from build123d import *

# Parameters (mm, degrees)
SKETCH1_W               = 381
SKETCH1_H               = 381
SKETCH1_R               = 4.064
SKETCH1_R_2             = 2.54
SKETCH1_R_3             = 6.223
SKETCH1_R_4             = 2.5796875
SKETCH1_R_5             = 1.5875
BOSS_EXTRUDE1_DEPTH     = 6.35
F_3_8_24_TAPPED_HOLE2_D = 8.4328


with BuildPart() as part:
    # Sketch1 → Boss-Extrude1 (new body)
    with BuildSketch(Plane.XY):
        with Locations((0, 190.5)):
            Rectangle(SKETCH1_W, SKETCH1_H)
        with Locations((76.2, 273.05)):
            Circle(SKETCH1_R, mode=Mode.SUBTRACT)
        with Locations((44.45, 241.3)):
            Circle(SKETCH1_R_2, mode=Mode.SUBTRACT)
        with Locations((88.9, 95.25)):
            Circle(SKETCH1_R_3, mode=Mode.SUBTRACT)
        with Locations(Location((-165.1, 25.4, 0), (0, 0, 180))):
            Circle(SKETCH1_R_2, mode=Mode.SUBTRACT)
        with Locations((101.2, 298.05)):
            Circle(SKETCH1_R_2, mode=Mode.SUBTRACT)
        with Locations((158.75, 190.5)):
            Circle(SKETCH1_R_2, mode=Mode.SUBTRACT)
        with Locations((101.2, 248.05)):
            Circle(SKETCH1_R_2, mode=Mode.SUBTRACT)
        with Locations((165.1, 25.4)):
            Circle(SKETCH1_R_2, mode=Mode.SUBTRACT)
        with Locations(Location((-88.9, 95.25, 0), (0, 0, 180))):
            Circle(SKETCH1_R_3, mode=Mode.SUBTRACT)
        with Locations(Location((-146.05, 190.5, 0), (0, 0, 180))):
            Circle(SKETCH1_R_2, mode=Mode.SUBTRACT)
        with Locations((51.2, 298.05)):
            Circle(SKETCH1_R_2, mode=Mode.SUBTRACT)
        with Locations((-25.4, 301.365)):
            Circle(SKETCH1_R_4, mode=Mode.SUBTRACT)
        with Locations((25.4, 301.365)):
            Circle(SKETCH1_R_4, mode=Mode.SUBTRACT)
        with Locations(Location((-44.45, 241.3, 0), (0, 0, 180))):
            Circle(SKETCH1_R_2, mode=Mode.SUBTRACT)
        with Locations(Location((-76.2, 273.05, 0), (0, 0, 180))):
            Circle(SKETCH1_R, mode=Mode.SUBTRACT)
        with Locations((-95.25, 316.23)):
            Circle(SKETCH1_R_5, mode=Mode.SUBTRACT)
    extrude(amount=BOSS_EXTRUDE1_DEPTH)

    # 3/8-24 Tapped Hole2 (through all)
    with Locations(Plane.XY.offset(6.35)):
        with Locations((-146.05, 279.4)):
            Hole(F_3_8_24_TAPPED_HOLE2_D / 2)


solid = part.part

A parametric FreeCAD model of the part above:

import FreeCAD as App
import Part
import Sketcher

V = App.Vector
Q = App.Units.Quantity


def add_polygon(sketch, points):
    """Adds a closed chain of lines whose ends are joined by coincident constraints."""
    first, n = sketch.GeometryCount, len(points)
    for a, b in zip(points, points[1:] + points[:1]):
        sketch.addGeometry(Part.LineSegment(App.Vector(*a, 0), App.Vector(*b, 0)), False)
    for i in range(n):
        sketch.addConstraint(Sketcher.Constraint("Coincident", first + i, 2, first + (i + 1) % n, 1))

doc = App.newDocument("Part")
body = doc.addObject("PartDesign::Body", "Body")

sketch1 = body.newObject("Sketcher::SketchObject", "Sketch")
sketch1.AttachmentSupport = (doc.getObject("XY_Plane"), [""])
sketch1.MapMode = "FlatFace"
add_polygon(sketch1, [(-190.5, 381), (-190.5, 0), (190.5, 0), (190.5, 381)])
sketch1.addGeometry(Part.Circle(V(-165.1, 25.4, 0), V(0, 0, 1), 2.5), False)
sketch1.addGeometry(Part.Circle(V(-88.9, 95.2, 0), V(0, 0, 1), 6.2), False)
sketch1.addGeometry(Part.Circle(V(165.1, 25.4, 0), V(0, 0, 1), 2.5), False)
sketch1.addGeometry(Part.Circle(V(88.9, 95.2, 0), V(0, 0, 1), 6.2), False)
sketch1.addGeometry(Part.Circle(V(-146.1, 190.5, 0), V(0, 0, 1), 2.5), False)
sketch1.addGeometry(Part.Circle(V(-44.5, 241.3, 0), V(0, 0, 1), 2.5), False)
sketch1.addGeometry(Part.Circle(V(-95.2, 316.2, 0), V(0, 0, 1), 1.6), False)
sketch1.addGeometry(Part.Circle(V(-76.2, 273.1, 0), V(0, 0, 1), 4.1), False)
sketch1.addGeometry(Part.Circle(V(-25.4, 301.4, 0), V(0, 0, 1), 2.6), False)
sketch1.addGeometry(Part.Circle(V(44.5, 241.3, 0), V(0, 0, 1), 2.5), False)
sketch1.addGeometry(Part.Circle(V(158.8, 190.5, 0), V(0, 0, 1), 2.5), False)
sketch1.addGeometry(Part.Circle(V(76.2, 273.1, 0), V(0, 0, 1), 4.1), False)
sketch1.addGeometry(Part.Circle(V(25.4, 301.4, 0), V(0, 0, 1), 2.6), False)
sketch1.addGeometry(Part.Circle(V(51.2, 298.1, 0), V(0, 0, 1), 2.5), False)
sketch1.addGeometry(Part.Circle(V(101.2, 248.1, 0), V(0, 0, 1), 2.5), False)
sketch1.addGeometry(Part.Circle(V(101.2, 298.1, 0), V(0, 0, 1), 2.5), False)
sketch1.addConstraint(Sketcher.Constraint("Vertical", 0))
sketch1.addConstraint(Sketcher.Constraint("Horizontal", 1))
sketch1.addConstraint(Sketcher.Constraint("Vertical", 2))
sketch1.addConstraint(Sketcher.Constraint("Horizontal", 3))
sketch1.addConstraint(Sketcher.Constraint("Equal", 4, 6))
sketch1.addConstraint(Sketcher.Constraint("Equal", 5, 7))
sketch1.addConstraint(Sketcher.Constraint("Equal", 6, 8))
sketch1.addConstraint(Sketcher.Constraint("Equal", 8, 9))
sketch1.addConstraint(Sketcher.Constraint("Equal", 9, 13))
sketch1.addConstraint(Sketcher.Constraint("Equal", 13, 14))
sketch1.addConstraint(Sketcher.Constraint("Equal", 11, 15))
sketch1.addConstraint(Sketcher.Constraint("Equal", 12, 16))
sketch1.addConstraint(Sketcher.Constraint("Equal", 14, 17))
sketch1.addConstraint(Sketcher.Constraint("Equal", 17, 18))
sketch1.addConstraint(Sketcher.Constraint("Equal", 18, 19))
sketch1.addConstraint(Sketcher.Constraint("Symmetric", 0, 2, 1, 2, -1, 1))
sketch1.addConstraint(Sketcher.Constraint("Symmetric", 4, 3, 6, 3, -2))
sketch1.addConstraint(Sketcher.Constraint("Symmetric", 5, 3, 7, 3, -2))
sketch1.addConstraint(Sketcher.Constraint("Symmetric", 9, 3, 13, 3, -2))
sketch1.addConstraint(Sketcher.Constraint("Symmetric", 11, 3, 15, 3, -2))
sketch1.addConstraint(Sketcher.Constraint("Symmetric", 12, 3, 16, 3, -2))
sketch1.addConstraint(Sketcher.Constraint("Horizontal", 8, 3, 14, 3))
sketch1.addConstraint(Sketcher.Constraint("Horizontal", 17, 3, 19, 3))
sketch1.addConstraint(Sketcher.Constraint("Vertical", 18, 3, 19, 3))
sketch1.addConstraint(Sketcher.Constraint("Equal", 3, 0))
sketch1.addConstraint(Sketcher.Constraint("Diameter", 4, Q("0.2 in")))
sketch1.addConstraint(Sketcher.Constraint("Diameter", 5, Q("0.49 in")))
sketch1.addConstraint(Sketcher.Constraint("Diameter", 11, Q("0.32 in")))
sketch1.addConstraint(Sketcher.Constraint("DistanceX", 1, 1, 1, 2, Q("15 in")))
sketch1.addConstraint(Sketcher.Constraint("Diameter", 10, Q("0.125 in")))
sketch1.addConstraint(Sketcher.Constraint("Diameter", 12, Q("0.203125 in")))
sketch1.addConstraint(Sketcher.Constraint("DistanceY", -1, 1, 4, 3, Q("1 in")))
sketch1.addConstraint(Sketcher.Constraint("DistanceX", 11, 3, -1, 1, Q("3 in")))
sketch1.addConstraint(Sketcher.Constraint("DistanceX", 12, 3, -1, 1, Q("1 in")))
sketch1.addConstraint(Sketcher.Constraint("DistanceX", 4, 3, 5, 3, Q("3 in")))
sketch1.addConstraint(Sketcher.Constraint("DistanceX", 5, 3, 6, 3, Q("10 in")))
sketch1.addConstraint(Sketcher.Constraint("DistanceX", 8, 3, 9, 3, Q("4 in")))
sketch1.addConstraint(Sketcher.Constraint("DistanceY", 8, 3, 9, 3, Q("2 in")))
sketch1.addConstraint(Sketcher.Constraint("DistanceX", 10, 3, 9, 3, Q("2 in")))
sketch1.addConstraint(Sketcher.Constraint("DistanceY", 5, 3, 11, 3, Q("7 in")))
sketch1.addConstraint(Sketcher.Constraint("DistanceX", 9, 3, 14, 3, Q("8 in")))
sketch1.addConstraint(Sketcher.Constraint("DistanceY", -1, 1, 8, 3, Q("7.5 in")))
sketch1.addConstraint(Sketcher.Constraint("DistanceY", 5, 3, 10, 3, Q("8.7 in")))
sketch1.addConstraint(Sketcher.Constraint("DistanceX", 9, 3, 13, 3, Q("3.5 in")))
sketch1.addConstraint(Sketcher.Constraint("DistanceY", -1, 1, 5, 3, Q("3.75 in")))
sketch1.addConstraint(Sketcher.Constraint("DistanceY", -1, 1, 12, 3, 301.365))
sketch1.addConstraint(Sketcher.Constraint("DistanceX", -1, 1, 17, 3, 51.2))
sketch1.addConstraint(Sketcher.Constraint("DistanceY", -1, 1, 17, 3, 298.05))
sketch1.addConstraint(Sketcher.Constraint("DistanceX", -1, 1, 18, 3, 101.2))
sketch1.addConstraint(Sketcher.Constraint("DistanceY", -1, 1, 18, 3, 248.05))
pad1 = body.newObject("PartDesign::Pad", "Pad")
pad1.Profile = sketch1
pad1.Length = Q("0.25 in")

sketch2 = body.newObject("Sketcher::SketchObject", "Sketch001")
sketch2.AttachmentSupport = (doc.getObject("XY_Plane"), [""])
sketch2.MapMode = "FlatFace"
sketch2.AttachmentOffset = App.Placement(V(0, 0, 0.25 * 25.4), App.Rotation())
sketch2.addGeometry(Part.Circle(V(-146.1, 279.4, 0), V(0, 0, 1), 4.2), False)
sketch2.addConstraint(Sketcher.Constraint("Diameter", 0, Q("0.332 in")))
sketch2.addConstraint(Sketcher.Constraint("DistanceY", -1, 1, 0, 3, Q("11 in")))
sketch2.addConstraint(Sketcher.Constraint("DistanceX", 0, 3, -1, 1, Q("5.75 in")))
doc.recompute()
hole = body.newObject("PartDesign::Hole", "Hole")
hole.Profile = sketch2
hole.ThreadType = "None"
hole.Diameter = Q("0.332 in")
hole.DepthType = "ThroughAll"

doc.recompute()
